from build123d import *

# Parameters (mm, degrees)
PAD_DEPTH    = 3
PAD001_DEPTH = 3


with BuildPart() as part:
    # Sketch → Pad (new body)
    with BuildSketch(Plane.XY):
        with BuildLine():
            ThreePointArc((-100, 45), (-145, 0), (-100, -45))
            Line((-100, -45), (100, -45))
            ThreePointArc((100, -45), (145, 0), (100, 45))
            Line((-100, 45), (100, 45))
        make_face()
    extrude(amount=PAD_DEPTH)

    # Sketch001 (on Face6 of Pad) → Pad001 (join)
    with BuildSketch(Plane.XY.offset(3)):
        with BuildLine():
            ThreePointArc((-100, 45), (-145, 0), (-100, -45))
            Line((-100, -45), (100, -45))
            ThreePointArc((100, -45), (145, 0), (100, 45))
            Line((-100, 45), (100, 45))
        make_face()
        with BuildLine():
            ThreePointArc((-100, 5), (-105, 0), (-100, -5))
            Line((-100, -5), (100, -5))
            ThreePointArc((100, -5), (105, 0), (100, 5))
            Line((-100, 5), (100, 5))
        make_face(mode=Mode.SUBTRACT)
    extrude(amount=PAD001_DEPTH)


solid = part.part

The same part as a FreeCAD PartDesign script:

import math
import FreeCAD as App
import Part
import Sketcher
Q = App.Units.Quantity

doc = App.newDocument("Part")
params = doc.addObject("Spreadsheet::Sheet", "Params")
for row, (alias, value) in enumerate([
    ("sketch1_radius", "45 mm"),
    ("sketch1_width", "200 mm"),
    ("pad1_length", "3 mm"),
    ("sketch2_radius", "45 mm"),
    ("sketch2_radius2", "5 mm"),
    ("sketch2_width", "200 mm"),
    ("pad2_length", "3 mm"),
], start=1):
    params.set(f"A{row}", alias)
    params.set(f"B{row}", "=" + value)
    params.setAlias(f"B{row}", alias)

body = doc.addObject("PartDesign::Body", "Body")

sketch1 = body.newObject("Sketcher::SketchObject", "Sketch")
sketch1.AttachmentSupport = (doc.getObject("XY_Plane"), [""])
sketch1.MapMode = "FlatFace"
sketch1.addGeometry([
    Part.ArcOfCircle(Part.Circle(App.Vector(-100, 0, 0), App.Vector(0, 0, 1), 45), math.radians(90), math.radians(270)),
    Part.LineSegment(App.Vector(-100, -45, 0), App.Vector(100, -45, 0)),
    Part.ArcOfCircle(Part.Circle(App.Vector(100, 0, 0), App.Vector(0, 0, 1), 45), math.radians(-90), math.radians(90)),
    Part.LineSegment(App.Vector(100, 45, 0), App.Vector(-100, 45, 0)),
], False)
sketch1.addConstraint([
    Sketcher.Constraint("Tangent", 0, 2, 1, 1),
    Sketcher.Constraint("Tangent", 1, 2, 2, 1),
    Sketcher.Constraint("Tangent", 2, 2, 3, 1),
    Sketcher.Constraint("Tangent", 3, 2, 0, 1),
    Sketcher.Constraint("Horizontal", 1),
    Sketcher.Constraint("Horizontal", 3),
    Sketcher.Constraint("Symmetric", 0, 3, 2, 3, -1, 1),
    Sketcher.Constraint("Radius", 0, Q("45 mm")),
    Sketcher.Constraint("DistanceX", 1, 1, 1, 2, Q("200 mm")),
])
sketch1.setExpression("Constraints[7]", "Params.sketch1_radius")
sketch1.setExpression("Constraints[8]", "Params.sketch1_width")
pad1 = body.newObject("PartDesign::Pad", "Pad")
pad1.Profile = sketch1
pad1.setExpression("Length", "Params.pad1_length")

sketch2 = body.newObject("Sketcher::SketchObject", "Sketch001")
sketch2.AttachmentSupport = (doc.getObject("XY_Plane"), [""])
sketch2.MapMode = "FlatFace"
sketch2.AttachmentOffset = App.Placement(App.Vector(0, 0, 3), App.Rotation())
sketch2.addGeometry([
    Part.ArcOfCircle(Part.Circle(App.Vector(-100, 0, 0), App.Vector(0, 0, 1), 45), math.radians(90), math.radians(270)),
    Part.LineSegment(App.Vector(-100, -45, 0), App.Vector(100, -45, 0)),
    Part.ArcOfCircle(Part.Circle(App.Vector(100, 0, 0), App.Vector(0, 0, 1), 45), math.radians(-90), math.radians(90)),
    Part.LineSegment(App.Vector(100, 45, 0), App.Vector(-100, 45, 0)),
    Part.ArcOfCircle(Part.Circle(App.Vector(-100, 0, 0), App.Vector(0, 0, 1), 5), math.radians(90), math.radians(270)),
    Part.LineSegment(App.Vector(-100, 5, 0), App.Vector(100, 5, 0)),
    Part.ArcOfCircle(Part.Circle(App.Vector(100, 0, 0), App.Vector(0, 0, 1), 5), math.radians(-90), math.radians(90)),
    Part.LineSegment(App.Vector(100, -5, 0), App.Vector(-100, -5, 0)),
], False)
sketch2.addConstraint([
    Sketcher.Constraint("Tangent", 0, 2, 1, 1),
    Sketcher.Constraint("Tangent", 1, 2, 2, 1),
    Sketcher.Constraint("Tangent", 2, 2, 3, 1),
    Sketcher.Constraint("Tangent", 3, 2, 0, 1),
    Sketcher.Constraint("Tangent", 4, 1, 5, 1),
    Sketcher.Constraint("Tangent", 5, 2, 6, 2),
    Sketcher.Constraint("Tangent", 6, 1, 7, 1),
    Sketcher.Constraint("Tangent", 7, 2, 4, 2),
    Sketcher.Constraint("Horizontal", 1),
    Sketcher.Constraint("Horizontal", 3),
    Sketcher.Constraint("Horizontal", 5),
    Sketcher.Constraint("Horizontal", 7),
    Sketcher.Constraint("Coincident", 4, 3, 0, 3),
    Sketcher.Constraint("Symmetric", 0, 3, 2, 3, -1, 1),
    Sketcher.Constraint("Vertical", 6, 3, 1, 2),
    Sketcher.Constraint("Radius", 0, Q("45 mm")),
    Sketcher.Constraint("Radius", 4, Q("5 mm")),
    Sketcher.Constraint("DistanceX", 1, 1, 1, 2, Q("200 mm")),
])
sketch2.setExpression("Constraints[15]", "Params.sketch2_radius")
sketch2.setExpression("Constraints[16]", "Params.sketch2_radius2")
sketch2.setExpression("Constraints[17]", "Params.sketch2_width")
pad2 = body.newObject("PartDesign::Pad", "Pad001")
pad2.Profile = sketch2
pad2.setExpression("Length", "Params.pad2_length")

doc.recompute()
